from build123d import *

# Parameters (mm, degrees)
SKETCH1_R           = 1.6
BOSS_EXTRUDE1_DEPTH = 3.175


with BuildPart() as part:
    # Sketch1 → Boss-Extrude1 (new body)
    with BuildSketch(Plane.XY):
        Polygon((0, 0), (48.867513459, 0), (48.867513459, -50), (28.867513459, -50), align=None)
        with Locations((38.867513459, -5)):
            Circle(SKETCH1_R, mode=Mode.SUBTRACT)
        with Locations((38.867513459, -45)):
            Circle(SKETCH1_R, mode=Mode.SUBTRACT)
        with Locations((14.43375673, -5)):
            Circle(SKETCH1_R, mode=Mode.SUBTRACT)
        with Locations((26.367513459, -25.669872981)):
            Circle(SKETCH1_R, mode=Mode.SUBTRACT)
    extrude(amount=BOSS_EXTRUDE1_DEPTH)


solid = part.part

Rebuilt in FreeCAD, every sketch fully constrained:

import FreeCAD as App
import Part
import Sketcher

V = App.Vector
Q = App.Units.Quantity

doc = App.newDocument("Part")
body = doc.addObject("PartDesign::Body", "Body")

# Sketch on XY plane
sketch1 = body.newObject("Sketcher::SketchObject", "Sketch")
sketch1.AttachmentSupport = (doc.getObject("XY_Plane"), [""])
sketch1.MapMode = "FlatFace"
sketch1.addGeometry([
    Part.LineSegment(V(48.867513, 0, 0), V(0, 0, 0)),  # 0
    Part.LineSegment(V(0, 0, 0), V(28.867513, -50, 0)),  # 1
    Part.LineSegment(V(28.867513, -50, 0), V(48.867513, -50, 0)),  # 2
    Part.LineSegment(V(48.867513, -50, 0), V(48.867513, 0, 0)),  # 3
    Part.Circle(V(38.867513, -45, 0), V(0, 0, 1), 1.6),  # 4
    Part.Circle(V(26.367513, -25.669873, 0), V(0, 0, 1), 1.6),  # 5
    Part.Circle(V(38.867513, -5, 0), V(0, 0, 1), 1.6),  # 6
    Part.Circle(V(14.433757, -5, 0), V(0, 0, 1), 1.6),  # 7
], False)
sketch1.addConstraint([
    Sketcher.Constraint("Coincident", 0, 2, 1, 1),
    Sketcher.Constraint("Coincident", 1, 2, 2, 1),
    Sketcher.Constraint("Coincident", 2, 2, 3, 1),
    Sketcher.Constraint("Coincident", 3, 2, 0, 1),
    Sketcher.Constraint("Horizontal", 0),
    Sketcher.Constraint("Horizontal", 2),
    Sketcher.Constraint("Vertical", 3),
    Sketcher.Constraint("Coincident", 0, 2, -1, 1),
    Sketcher.Constraint("Equal", 4, 5),
    Sketcher.Constraint("Equal", 5, 6),
    Sketcher.Constraint("Equal", 6, 7),
    Sketcher.Constraint("Horizontal", 6, 3, 7, 3),
    Sketcher.Constraint("Vertical", 4, 3, 6, 3),
    Sketcher.Constraint("Diameter", 4, Q("3.2 mm")),
    Sketcher.Constraint("DistanceX", 2, 1, 2, 2, Q("20 mm")),
    Sketcher.Constraint("DistanceY", 3, 1, 3, 2, Q("50 mm")),
    Sketcher.Constraint("Angle", 1, Q("-60 deg")),
    Sketcher.Constraint("DistanceY", 4, 3, -1, 1, Q("45 mm")),
    Sketcher.Constraint("DistanceY", 6, 3, -1, 1, Q("5 mm")),
    Sketcher.Constraint("DistanceX", 1, 2, 4, 3, Q("10 mm")),
    Sketcher.Constraint("DistanceX", 5, 3, 4, 3, Q("12.5 mm")),
    Sketcher.Constraint("DistanceY", 5, 3, -1, 1, Q("25.669873 mm")),
    Sketcher.Constraint("DistanceX", -1, 1, 7, 3, Q("14.433757 mm")),
])
pad1 = body.newObject("PartDesign::Pad", "Pad")
pad1.Profile = sketch1
pad1.Length = 3.175

doc.recompute()
